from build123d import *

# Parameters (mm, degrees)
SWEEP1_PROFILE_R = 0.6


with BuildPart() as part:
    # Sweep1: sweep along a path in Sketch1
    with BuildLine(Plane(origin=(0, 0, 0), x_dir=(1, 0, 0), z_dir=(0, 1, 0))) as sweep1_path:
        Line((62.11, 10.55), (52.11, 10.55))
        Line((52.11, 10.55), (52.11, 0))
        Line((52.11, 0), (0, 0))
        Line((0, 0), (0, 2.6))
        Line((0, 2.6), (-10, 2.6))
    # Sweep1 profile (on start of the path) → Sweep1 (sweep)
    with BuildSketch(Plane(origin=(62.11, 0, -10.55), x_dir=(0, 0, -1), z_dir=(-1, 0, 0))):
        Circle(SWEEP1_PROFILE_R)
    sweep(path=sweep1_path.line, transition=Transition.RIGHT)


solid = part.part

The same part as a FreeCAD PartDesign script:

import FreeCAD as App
import Part
import Sketcher
Q = App.Units.Quantity

doc = App.newDocument("Part")
body = doc.addObject("PartDesign::Body", "Body")

# Sketch on YZ plane
sketch1 = body.newObject("Sketcher::SketchObject", "Sketch")
sketch1.AttachmentSupport = (doc.getObject("YZ_Plane"), [""])
sketch1.MapMode = "FlatFace"
sketch1.AttachmentOffset = App.Placement(App.Vector(0, 0, 62.11), App.Rotation())
sketch1.addGeometry(Part.Circle(App.Vector(0, -10.55, 0), App.Vector(0, 0, 1), 0.6), False)
sketch1.addConstraint(Sketcher.Constraint("PointOnObject", 0, 3, -2))
sketch1.addConstraint(Sketcher.Constraint("Diameter", 0, Q("1.2 mm")))
sketch1.addConstraint(Sketcher.Constraint("DistanceY", 0, 3, -1, 1, Q("10.55 mm")))

# Sketch on XZ plane
sketch2 = body.newObject("Sketcher::SketchObject", "Sketch001")
sketch2.AttachmentSupport = (doc.getObject("XZ_Plane"), [""])
sketch2.MapMode = "FlatFace"
sketch2.addGeometry(Part.LineSegment(App.Vector(62.11, -10.55, 0), App.Vector(52.11, -10.55, 0)), False)
sketch2.addGeometry(Part.LineSegment(App.Vector(52.11, -10.55, 0), App.Vector(52.11, 0, 0)), False)
sketch2.addGeometry(Part.LineSegment(App.Vector(52.11, 0, 0), App.Vector(0, 0, 0)), False)
sketch2.addGeometry(Part.LineSegment(App.Vector(0, 0, 0), App.Vector(0, -2.6, 0)), False)
sketch2.addGeometry(Part.LineSegment(App.Vector(0, -2.6, 0), App.Vector(-10, -2.6, 0)), False)
sketch2.addConstraint(Sketcher.Constraint("Coincident", 0, 2, 1, 1))
sketch2.addConstraint(Sketcher.Constraint("Coincident", 1, 2, 2, 1))
sketch2.addConstraint(Sketcher.Constraint("Coincident", 2, 2, 3, 1))
sketch2.addConstraint(Sketcher.Constraint("Coincident", 3, 2, 4, 1))
sketch2.addConstraint(Sketcher.Constraint("Horizontal", 0))
sketch2.addConstraint(Sketcher.Constraint("Vertical", 1))
sketch2.addConstraint(Sketcher.Constraint("Horizontal", 2))
sketch2.addConstraint(Sketcher.Constraint("Vertical", 3))
sketch2.addConstraint(Sketcher.Constraint("Horizontal", 4))
sketch2.addConstraint(Sketcher.Constraint("Coincident", 2, 2, -1, 1))
sketch2.addConstraint(Sketcher.Constraint("Equal", 0, 4))
sketch2.addConstraint(Sketcher.Constraint("DistanceX", 0, 2, 0, 1, Q("10 mm")))
sketch2.addConstraint(Sketcher.Constraint("DistanceY", 3, 2, 3, 1, Q("2.6 mm")))
sketch2.addConstraint(Sketcher.Constraint("DistanceX", 2, 2, 2, 1, Q("52.11 mm")))
sketch2.addConstraint(Sketcher.Constraint("DistanceY", 1, 1, 1, 2, Q("10.55 mm")))
doc.recompute()

additivepipe = body.newObject("PartDesign::AdditivePipe", "AdditivePipe")
additivepipe.Profile = sketch1
additivepipe.Spine = (sketch2, ["Edge1", "Edge2", "Edge3", "Edge4", "Edge5"])
additivepipe.Transition = "Right corner"

doc.recompute()
